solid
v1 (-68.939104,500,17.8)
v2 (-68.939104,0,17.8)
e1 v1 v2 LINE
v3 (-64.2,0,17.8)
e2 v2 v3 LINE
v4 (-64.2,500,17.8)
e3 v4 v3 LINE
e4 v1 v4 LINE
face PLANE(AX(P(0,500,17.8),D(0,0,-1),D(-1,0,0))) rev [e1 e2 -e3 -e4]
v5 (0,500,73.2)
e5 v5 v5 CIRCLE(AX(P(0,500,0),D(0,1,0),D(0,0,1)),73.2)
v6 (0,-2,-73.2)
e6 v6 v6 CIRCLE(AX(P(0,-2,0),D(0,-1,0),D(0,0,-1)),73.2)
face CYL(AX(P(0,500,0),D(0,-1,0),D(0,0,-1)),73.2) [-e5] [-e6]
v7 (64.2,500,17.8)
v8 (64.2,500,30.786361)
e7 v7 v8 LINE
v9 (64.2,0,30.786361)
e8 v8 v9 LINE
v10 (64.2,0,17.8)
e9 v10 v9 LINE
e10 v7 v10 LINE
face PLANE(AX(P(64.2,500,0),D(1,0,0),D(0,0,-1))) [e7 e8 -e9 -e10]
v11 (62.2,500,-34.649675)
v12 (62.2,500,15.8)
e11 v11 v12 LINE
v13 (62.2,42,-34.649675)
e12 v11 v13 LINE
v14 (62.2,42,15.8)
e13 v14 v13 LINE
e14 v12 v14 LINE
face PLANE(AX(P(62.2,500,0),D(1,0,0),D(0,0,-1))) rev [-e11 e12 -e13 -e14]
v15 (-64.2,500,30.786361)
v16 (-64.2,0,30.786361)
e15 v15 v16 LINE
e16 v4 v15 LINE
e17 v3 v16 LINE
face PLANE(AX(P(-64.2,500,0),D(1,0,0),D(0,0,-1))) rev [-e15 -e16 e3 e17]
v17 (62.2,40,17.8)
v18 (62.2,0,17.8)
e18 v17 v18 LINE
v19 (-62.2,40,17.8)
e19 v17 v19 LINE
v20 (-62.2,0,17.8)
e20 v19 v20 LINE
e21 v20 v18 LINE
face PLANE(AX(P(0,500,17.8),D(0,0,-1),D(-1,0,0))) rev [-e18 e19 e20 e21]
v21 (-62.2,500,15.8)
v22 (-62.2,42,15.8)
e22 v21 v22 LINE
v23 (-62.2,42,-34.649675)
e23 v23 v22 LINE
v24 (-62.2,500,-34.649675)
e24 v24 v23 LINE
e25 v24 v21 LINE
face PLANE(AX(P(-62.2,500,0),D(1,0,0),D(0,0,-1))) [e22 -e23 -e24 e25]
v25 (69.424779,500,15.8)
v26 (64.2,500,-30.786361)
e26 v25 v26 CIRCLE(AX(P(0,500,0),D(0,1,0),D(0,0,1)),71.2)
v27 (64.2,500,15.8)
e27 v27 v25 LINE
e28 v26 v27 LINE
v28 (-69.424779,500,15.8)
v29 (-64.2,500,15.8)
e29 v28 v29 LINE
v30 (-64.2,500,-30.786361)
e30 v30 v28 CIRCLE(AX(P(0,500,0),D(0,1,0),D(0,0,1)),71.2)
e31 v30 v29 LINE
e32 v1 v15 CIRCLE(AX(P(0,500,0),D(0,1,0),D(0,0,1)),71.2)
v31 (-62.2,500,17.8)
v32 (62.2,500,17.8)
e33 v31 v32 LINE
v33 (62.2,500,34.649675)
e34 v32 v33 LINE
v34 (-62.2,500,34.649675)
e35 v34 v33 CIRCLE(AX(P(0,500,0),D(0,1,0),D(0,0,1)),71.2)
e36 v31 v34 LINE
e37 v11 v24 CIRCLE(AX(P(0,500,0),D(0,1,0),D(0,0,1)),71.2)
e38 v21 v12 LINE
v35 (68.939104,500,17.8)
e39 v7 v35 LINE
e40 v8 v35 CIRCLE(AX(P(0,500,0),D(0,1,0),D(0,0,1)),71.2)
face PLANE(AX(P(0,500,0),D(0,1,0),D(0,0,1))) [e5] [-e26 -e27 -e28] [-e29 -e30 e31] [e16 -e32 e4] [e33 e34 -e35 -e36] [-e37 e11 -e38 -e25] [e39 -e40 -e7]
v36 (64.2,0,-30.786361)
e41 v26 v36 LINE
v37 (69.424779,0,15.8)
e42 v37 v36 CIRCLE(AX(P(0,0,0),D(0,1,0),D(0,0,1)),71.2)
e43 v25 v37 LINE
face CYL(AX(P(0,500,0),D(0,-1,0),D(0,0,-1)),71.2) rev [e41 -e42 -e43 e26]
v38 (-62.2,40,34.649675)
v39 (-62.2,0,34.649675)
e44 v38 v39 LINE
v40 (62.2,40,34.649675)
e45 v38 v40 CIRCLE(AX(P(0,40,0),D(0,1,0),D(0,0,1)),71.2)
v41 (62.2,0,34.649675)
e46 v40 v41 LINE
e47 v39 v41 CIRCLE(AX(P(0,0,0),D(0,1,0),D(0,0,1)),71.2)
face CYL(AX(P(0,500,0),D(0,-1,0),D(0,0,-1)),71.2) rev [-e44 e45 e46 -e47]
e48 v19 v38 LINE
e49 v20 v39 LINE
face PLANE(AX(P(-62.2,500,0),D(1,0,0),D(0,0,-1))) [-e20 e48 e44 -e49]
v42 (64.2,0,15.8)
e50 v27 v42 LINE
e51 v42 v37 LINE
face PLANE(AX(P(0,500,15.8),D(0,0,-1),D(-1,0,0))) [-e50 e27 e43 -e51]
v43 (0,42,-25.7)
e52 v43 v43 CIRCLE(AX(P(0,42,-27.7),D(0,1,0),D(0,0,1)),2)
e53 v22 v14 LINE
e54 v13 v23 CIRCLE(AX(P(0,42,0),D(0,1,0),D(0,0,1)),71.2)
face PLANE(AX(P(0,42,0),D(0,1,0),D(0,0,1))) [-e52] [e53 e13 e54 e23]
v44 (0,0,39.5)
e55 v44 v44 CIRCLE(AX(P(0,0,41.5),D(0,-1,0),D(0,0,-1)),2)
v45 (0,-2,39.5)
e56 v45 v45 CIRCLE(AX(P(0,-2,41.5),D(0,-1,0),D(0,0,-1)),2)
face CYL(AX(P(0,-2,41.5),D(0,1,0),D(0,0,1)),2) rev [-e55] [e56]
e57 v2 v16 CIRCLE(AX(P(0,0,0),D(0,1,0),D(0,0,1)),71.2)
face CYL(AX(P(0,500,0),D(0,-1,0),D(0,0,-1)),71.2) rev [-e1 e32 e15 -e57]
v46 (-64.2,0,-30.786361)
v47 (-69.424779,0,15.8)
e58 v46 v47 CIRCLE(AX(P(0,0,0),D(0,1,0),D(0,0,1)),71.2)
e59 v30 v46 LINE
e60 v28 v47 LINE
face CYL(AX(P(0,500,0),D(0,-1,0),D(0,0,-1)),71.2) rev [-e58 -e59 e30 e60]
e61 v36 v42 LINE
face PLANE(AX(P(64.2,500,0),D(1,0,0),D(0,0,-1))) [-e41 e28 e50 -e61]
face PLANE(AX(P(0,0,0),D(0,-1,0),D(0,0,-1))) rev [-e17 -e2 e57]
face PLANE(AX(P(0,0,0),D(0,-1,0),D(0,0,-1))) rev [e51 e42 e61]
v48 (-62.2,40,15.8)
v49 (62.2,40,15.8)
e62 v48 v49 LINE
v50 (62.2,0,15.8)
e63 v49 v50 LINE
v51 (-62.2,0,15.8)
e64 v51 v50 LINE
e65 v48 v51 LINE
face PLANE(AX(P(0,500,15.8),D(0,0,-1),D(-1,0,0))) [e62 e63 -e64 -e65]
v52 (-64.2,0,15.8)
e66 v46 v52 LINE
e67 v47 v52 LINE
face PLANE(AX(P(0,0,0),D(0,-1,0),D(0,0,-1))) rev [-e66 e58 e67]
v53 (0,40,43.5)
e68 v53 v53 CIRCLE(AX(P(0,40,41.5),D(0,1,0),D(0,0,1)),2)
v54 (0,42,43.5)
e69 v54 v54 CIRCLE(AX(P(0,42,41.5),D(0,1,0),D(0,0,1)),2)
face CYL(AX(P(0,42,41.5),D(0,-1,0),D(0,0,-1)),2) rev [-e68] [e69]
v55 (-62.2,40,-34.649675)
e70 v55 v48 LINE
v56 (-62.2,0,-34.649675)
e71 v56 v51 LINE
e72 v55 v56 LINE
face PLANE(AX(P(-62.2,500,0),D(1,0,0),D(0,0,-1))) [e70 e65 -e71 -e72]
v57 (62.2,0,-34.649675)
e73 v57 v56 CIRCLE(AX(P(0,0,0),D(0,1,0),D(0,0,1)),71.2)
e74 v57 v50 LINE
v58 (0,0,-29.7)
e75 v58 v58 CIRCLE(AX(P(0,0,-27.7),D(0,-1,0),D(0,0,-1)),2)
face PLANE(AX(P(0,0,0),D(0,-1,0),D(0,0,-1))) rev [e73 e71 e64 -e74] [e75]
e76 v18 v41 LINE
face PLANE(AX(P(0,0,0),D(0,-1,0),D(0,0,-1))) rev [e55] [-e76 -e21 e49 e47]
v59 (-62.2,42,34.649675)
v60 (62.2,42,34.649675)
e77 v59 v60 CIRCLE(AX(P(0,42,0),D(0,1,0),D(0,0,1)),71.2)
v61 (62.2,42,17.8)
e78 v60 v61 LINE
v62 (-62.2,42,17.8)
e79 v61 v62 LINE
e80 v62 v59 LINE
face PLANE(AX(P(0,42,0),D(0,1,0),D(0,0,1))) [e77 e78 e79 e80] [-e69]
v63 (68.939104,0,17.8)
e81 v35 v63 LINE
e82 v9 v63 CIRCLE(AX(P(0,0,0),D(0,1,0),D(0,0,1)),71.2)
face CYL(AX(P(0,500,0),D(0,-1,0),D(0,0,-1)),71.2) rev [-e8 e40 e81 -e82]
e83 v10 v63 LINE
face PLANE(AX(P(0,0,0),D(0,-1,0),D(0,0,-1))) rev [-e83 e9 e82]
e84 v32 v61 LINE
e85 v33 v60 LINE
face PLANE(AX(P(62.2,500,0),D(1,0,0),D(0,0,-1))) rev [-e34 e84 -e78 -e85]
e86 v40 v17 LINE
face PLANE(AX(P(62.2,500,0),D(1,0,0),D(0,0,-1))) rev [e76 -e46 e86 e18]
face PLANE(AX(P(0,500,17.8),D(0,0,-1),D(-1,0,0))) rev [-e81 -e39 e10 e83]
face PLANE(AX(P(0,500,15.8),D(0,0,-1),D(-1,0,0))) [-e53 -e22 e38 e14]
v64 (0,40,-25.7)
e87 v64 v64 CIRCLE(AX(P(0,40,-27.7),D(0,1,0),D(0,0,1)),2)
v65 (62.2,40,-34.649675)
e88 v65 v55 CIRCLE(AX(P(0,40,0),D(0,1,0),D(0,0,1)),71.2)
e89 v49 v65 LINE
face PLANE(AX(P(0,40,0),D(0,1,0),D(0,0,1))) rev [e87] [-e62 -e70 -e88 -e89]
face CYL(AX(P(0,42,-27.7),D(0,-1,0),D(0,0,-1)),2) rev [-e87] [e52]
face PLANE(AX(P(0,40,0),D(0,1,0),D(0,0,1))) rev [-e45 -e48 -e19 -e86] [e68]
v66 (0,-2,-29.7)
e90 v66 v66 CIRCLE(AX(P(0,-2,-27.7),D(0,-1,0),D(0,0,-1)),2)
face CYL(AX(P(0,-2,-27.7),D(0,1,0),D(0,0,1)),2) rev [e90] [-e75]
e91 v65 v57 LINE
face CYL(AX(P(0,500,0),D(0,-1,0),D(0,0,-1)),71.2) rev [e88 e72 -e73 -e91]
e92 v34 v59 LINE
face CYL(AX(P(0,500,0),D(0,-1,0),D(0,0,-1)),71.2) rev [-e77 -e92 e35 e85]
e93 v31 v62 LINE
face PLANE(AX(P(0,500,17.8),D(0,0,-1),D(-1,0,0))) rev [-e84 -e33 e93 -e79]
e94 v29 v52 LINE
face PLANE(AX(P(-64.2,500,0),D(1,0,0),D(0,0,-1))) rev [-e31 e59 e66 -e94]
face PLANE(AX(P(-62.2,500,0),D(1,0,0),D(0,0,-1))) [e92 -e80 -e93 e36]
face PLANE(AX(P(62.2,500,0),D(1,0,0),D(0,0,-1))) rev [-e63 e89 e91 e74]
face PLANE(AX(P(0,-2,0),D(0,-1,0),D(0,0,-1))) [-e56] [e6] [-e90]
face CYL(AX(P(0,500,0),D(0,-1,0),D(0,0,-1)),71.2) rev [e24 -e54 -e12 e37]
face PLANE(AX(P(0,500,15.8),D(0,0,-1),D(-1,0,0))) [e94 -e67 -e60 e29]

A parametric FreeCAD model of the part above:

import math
import FreeCAD as App
import Part
import Sketcher
from FreeCAD import Vector

doc = App.newDocument("Part")
body = doc.addObject("PartDesign::Body", "Body")

sketch1 = body.newObject("Sketcher::SketchObject", "Sketch")
sketch1.AttachmentSupport = (doc.getObject("XZ_Plane"), [""])
sketch1.MapMode = "FlatFace"
sketch1.addGeometry(Part.ArcOfCircle(Part.Circle(Vector(0, 0, 0), Vector(0, 0, 1), 73.2), math.radians(0), math.radians(148)), False)
sketch1.addGeometry(Part.ArcOfCircle(Part.Circle(Vector(0, 0, 0), Vector(0, 0, 1), 73.2), math.radians(151), math.radians(360)), False)
sketch1.addGeometry(Part.ArcOfCircle(Part.Circle(Vector(0, 0, 0), Vector(0, 0, 1), 73.2), math.radians(148.18), math.radians(151.29)), False)
sketch1.addGeometry(Part.LineSegment(Vector(-62.2, 34.6, 0), Vector(-62.2, 17.8, 0)), False)
sketch1.addGeometry(Part.LineSegment(Vector(-62.2, 17.8, 0), Vector(62.2, 17.8, 0)), False)
sketch1.addGeometry(Part.LineSegment(Vector(62.2, 17.8, 0), Vector(62.2, 34.6, 0)), False)
sketch1.addGeometry(Part.ArcOfCircle(Part.Circle(Vector(0, 0, 0), Vector(0, 0, 1), 71.2), math.radians(29), math.radians(151)), False)
sketch1.addGeometry(Part.LineSegment(Vector(-64.2, 17.8, 0), Vector(-64.2, 30.8, 0)), False)
sketch1.addGeometry(Part.ArcOfCircle(Part.Circle(Vector(0, 0, 0), Vector(0, 0, 1), 71.2), math.radians(154.38), math.radians(165.52)), False)
sketch1.addGeometry(Part.LineSegment(Vector(-68.9, 17.8, 0), Vector(-64.2, 17.8, 0)), False)
sketch1.addGeometry(Part.ArcOfCircle(Part.Circle(Vector(0, 0, 0), Vector(0, 0, 1), 71.2), math.radians(14.48), math.radians(25.62)), False)
sketch1.addGeometry(Part.LineSegment(Vector(64.2, 30.8, 0), Vector(64.2, 17.8, 0)), False)
sketch1.addGeometry(Part.LineSegment(Vector(64.2, 17.8, 0), Vector(68.9, 17.8, 0)), False)
sketch1.addGeometry(Part.LineSegment(Vector(-64.2, -30.8, 0), Vector(-64.2, 15.8, 0)), False)
sketch1.addGeometry(Part.LineSegment(Vector(-64.2, 15.8, 0), Vector(-69.4, 15.8, 0)), False)
sketch1.addGeometry(Part.ArcOfCircle(Part.Circle(Vector(0, 0, 0), Vector(0, 0, 1), 71.2), math.radians(167), math.radians(206)), False)
sketch1.addGeometry(Part.LineSegment(Vector(-62.2, 15.8, 0), Vector(-62.2, -34.6, 0)), False)
sketch1.addGeometry(Part.ArcOfCircle(Part.Circle(Vector(0, 0, 0), Vector(0, 0, 1), 71.2), math.radians(-151), math.radians(-29)), False)
sketch1.addGeometry(Part.LineSegment(Vector(62.2, -34.6, 0), Vector(62.2, 15.8, 0)), False)
sketch1.addGeometry(Part.LineSegment(Vector(62.2, 15.8, 0), Vector(-62.2, 15.8, 0)), False)
sketch1.addGeometry(Part.LineSegment(Vector(69.4, 15.8, 0), Vector(64.2, 15.8, 0)), False)
sketch1.addGeometry(Part.LineSegment(Vector(64.2, 15.8, 0), Vector(64.2, -30.8, 0)), False)
sketch1.addGeometry(Part.ArcOfCircle(Part.Circle(Vector(0, 0, 0), Vector(0, 0, 1), 71.2), math.radians(-26), math.radians(13)), False)
sketch1.addConstraint(Sketcher.Constraint("Tangent", 0, 1, 1, 2))
sketch1.addConstraint(Sketcher.Constraint("Tangent", 1, 1, 2, 2))
sketch1.addConstraint(Sketcher.Constraint("Coincident", 2, 1, 0, 2))
sketch1.addConstraint(Sketcher.Constraint("Coincident", 3, 2, 4, 1))
sketch1.addConstraint(Sketcher.Constraint("Coincident", 4, 2, 5, 1))
sketch1.addConstraint(Sketcher.Constraint("Coincident", 5, 2, 6, 1))
sketch1.addConstraint(Sketcher.Constraint("Coincident", 6, 2, 3, 1))
sketch1.addConstraint(Sketcher.Constraint("Coincident", 7, 2, 8, 1))
sketch1.addConstraint(Sketcher.Constraint("Coincident", 8, 2, 9, 1))
sketch1.addConstraint(Sketcher.Constraint("Coincident", 9, 2, 7, 1))
sketch1.addConstraint(Sketcher.Constraint("Coincident", 10, 2, 11, 1))
sketch1.addConstraint(Sketcher.Constraint("Coincident", 11, 2, 12, 1))
sketch1.addConstraint(Sketcher.Constraint("Coincident", 12, 2, 10, 1))
sketch1.addConstraint(Sketcher.Constraint("Coincident", 13, 2, 14, 1))
sketch1.addConstraint(Sketcher.Constraint("Coincident", 14, 2, 15, 1))
sketch1.addConstraint(Sketcher.Constraint("Coincident", 15, 2, 13, 1))
sketch1.addConstraint(Sketcher.Constraint("Coincident", 16, 2, 17, 1))
sketch1.addConstraint(Sketcher.Constraint("Coincident", 17, 2, 18, 1))
sketch1.addConstraint(Sketcher.Constraint("Coincident", 18, 2, 19, 1))
sketch1.addConstraint(Sketcher.Constraint("Coincident", 19, 2, 16, 1))
sketch1.addConstraint(Sketcher.Constraint("Coincident", 20, 2, 21, 1))
sketch1.addConstraint(Sketcher.Constraint("Coincident", 21, 2, 22, 1))
sketch1.addConstraint(Sketcher.Constraint("Coincident", 22, 2, 20, 1))
sketch1.addConstraint(Sketcher.Constraint("Vertical", 3))
sketch1.addConstraint(Sketcher.Constraint("Horizontal", 4))
sketch1.addConstraint(Sketcher.Constraint("Vertical", 5))
sketch1.addConstraint(Sketcher.Constraint("Vertical", 7))
sketch1.addConstraint(Sketcher.Constraint("Horizontal", 9))
sketch1.addConstraint(Sketcher.Constraint("Vertical", 11))
sketch1.addConstraint(Sketcher.Constraint("Horizontal", 12))
sketch1.addConstraint(Sketcher.Constraint("Vertical", 13))
sketch1.addConstraint(Sketcher.Constraint("Horizontal", 14))
sketch1.addConstraint(Sketcher.Constraint("Vertical", 16))
sketch1.addConstraint(Sketcher.Constraint("Vertical", 18))
sketch1.addConstraint(Sketcher.Constraint("Horizontal", 19))
sketch1.addConstraint(Sketcher.Constraint("Horizontal", 20))
sketch1.addConstraint(Sketcher.Constraint("Vertical", 21))
sketch1.addConstraint(Sketcher.Constraint("Coincident", 0, 3, -1, 1))
sketch1.addConstraint(Sketcher.Constraint("Coincident", 6, 3, -1, 1))
sketch1.addConstraint(Sketcher.Constraint("Coincident", 8, 3, -1, 1))
sketch1.addConstraint(Sketcher.Constraint("Coincident", 10, 3, -1, 1))
sketch1.addConstraint(Sketcher.Constraint("Coincident", 15, 3, -1, 1))
sketch1.addConstraint(Sketcher.Constraint("Coincident", 17, 3, -1, 1))
sketch1.addConstraint(Sketcher.Constraint("Coincident", 22, 3, -1, 1))
sketch1.addConstraint(Sketcher.Constraint("Equal", 1, 2))
sketch1.addConstraint(Sketcher.Constraint("Equal", 6, 8))
sketch1.addConstraint(Sketcher.Constraint("Equal", 8, 10))
sketch1.addConstraint(Sketcher.Constraint("Equal", 10, 15))
sketch1.addConstraint(Sketcher.Constraint("Equal", 15, 17))
sketch1.addConstraint(Sketcher.Constraint("Equal", 17, 22))
sketch1.addConstraint(Sketcher.Constraint("Symmetric", 9, 2, 11, 2, -2))
sketch1.addConstraint(Sketcher.Constraint("Symmetric", 13, 2, 20, 2, -2))
sketch1.addConstraint(Sketcher.Constraint("PointOnObject", 0, 1, -1))
sketch1.addConstraint(Sketcher.Constraint("Horizontal", 5, 2, 6, 2))
sketch1.addConstraint(Sketcher.Constraint("Horizontal", 4, 2, 8, 2))
sketch1.addConstraint(Sketcher.Constraint("Horizontal", 16, 2, 17, 2))
sketch1.addConstraint(Sketcher.Constraint("Horizontal", 14, 2, 18, 2))
sketch1.addConstraint(Sketcher.Constraint("Vertical", 2, 1, 3, 2))
sketch1.addConstraint(Sketcher.Constraint("Vertical", 1, 1, 7, 2))
sketch1.addConstraint(Sketcher.Constraint("Vertical", 9, 2, 13, 2))
sketch1.addConstraint(Sketcher.Constraint("Vertical", 6, 2, 16, 2))
sketch1.addConstraint(Sketcher.Constraint("Radius", 0, 73.2))
sketch1.addConstraint(Sketcher.Constraint("Radius", 6, 71.2))
sketch1.addConstraint(Sketcher.Constraint("DistanceX", 4, 1, 4, 2, 124.4))
sketch1.addConstraint(Sketcher.Constraint("DistanceX", 1, 1, 2, 1, 2.0))
sketch1.addConstraint(Sketcher.Constraint("DistanceY", 13, 2, 9, 2, 2.0))
sketch1.addConstraint(Sketcher.Constraint("DistanceY", -1, 1, 3, 2, 17.8))
pad1 = body.newObject("PartDesign::Pad", "Pad")
pad1.Profile = sketch1
pad1.Length = 500
pad1.Reversed = True

sketch2 = body.newObject("Sketcher::SketchObject", "Sketch001")
sketch2.AttachmentSupport = (doc.getObject("XZ_Plane"), [""])
sketch2.MapMode = "FlatFace"
sketch2.AttachmentOffset = App.Placement(Vector(0, 0, 2), App.Rotation())
sketch2.addGeometry(Part.Circle(Vector(0, 0, 0), Vector(0, 0, 1), 73.2), False)
sketch2.addGeometry(Part.Circle(Vector(0, 41.5, 0), Vector(0, 0, 1), 2), False)
sketch2.addGeometry(Part.Circle(Vector(0, -27.7, 0), Vector(0, 0, 1), 2), False)
sketch2.addConstraint(Sketcher.Constraint("Coincident", 0, 3, -1, 1))
sketch2.addConstraint(Sketcher.Constraint("Equal", 1, 2))
sketch2.addConstraint(Sketcher.Constraint("PointOnObject", 1, 3, -2))
sketch2.addConstraint(Sketcher.Constraint("PointOnObject", 2, 3, -2))
sketch2.addConstraint(Sketcher.Constraint("Diameter", 1, 4.0))
sketch2.addConstraint(Sketcher.Constraint("Diameter", 0, 146.4))
sketch2.addConstraint(Sketcher.Constraint("DistanceY", -1, 1, 1, 3, 41.5))
sketch2.addConstraint(Sketcher.Constraint("DistanceY", 2, 3, -1, 1, 27.7))
pad2 = body.newObject("PartDesign::Pad", "Pad001")
pad2.Profile = sketch2
pad2.Length = 2
pad2.Reversed = True

sketch3 = body.newObject("Sketcher::SketchObject", "Sketch002")
sketch3.AttachmentSupport = (doc.getObject("XZ_Plane"), [""])
sketch3.MapMode = "FlatFace"
sketch3.AttachmentOffset = App.Placement(Vector(0, 0, -40), App.Rotation())
sketch3.addGeometry(Part.LineSegment(Vector(-62.2, 17.8, 0), Vector(-62.2, 34.6, 0)), False)
sketch3.addGeometry(Part.ArcOfCircle(Part.Circle(Vector(0, 0, 0), Vector(0, 0, 1), 71.2), math.radians(29), math.radians(151)), False)
sketch3.addGeometry(Part.LineSegment(Vector(62.2, 34.6, 0), Vector(62.2, 17.8, 0)), False)
sketch3.addGeometry(Part.LineSegment(Vector(62.2, 17.8, 0), Vector(-62.2, 17.8, 0)), False)
sketch3.addGeometry(Part.Circle(Vector(0, 41.5, 0), Vector(0, 0, 1), 2), False)
sketch3.addGeometry(Part.LineSegment(Vector(62.2, 15.8, 0), Vector(62.2, -34.6, 0)), False)
sketch3.addGeometry(Part.ArcOfCircle(Part.Circle(Vector(0, 0, 0), Vector(0, 0, 1), 71.2), math.radians(-151), math.radians(-29)), False)
sketch3.addGeometry(Part.LineSegment(Vector(-62.2, -34.6, 0), Vector(-62.2, 15.8, 0)), False)
sketch3.addGeometry(Part.LineSegment(Vector(-62.2, 15.8, 0), Vector(62.2, 15.8, 0)), False)
sketch3.addGeometry(Part.Circle(Vector(0, -27.7, 0), Vector(0, 0, 1), 2), False)
sketch3.addConstraint(Sketcher.Constraint("Coincident", 0, 2, 1, 2))
sketch3.addConstraint(Sketcher.Constraint("Coincident", 1, 1, 2, 1))
sketch3.addConstraint(Sketcher.Constraint("Coincident", 2, 2, 3, 1))
sketch3.addConstraint(Sketcher.Constraint("Coincident", 3, 2, 0, 1))
sketch3.addConstraint(Sketcher.Constraint("Coincident", 5, 2, 6, 2))
sketch3.addConstraint(Sketcher.Constraint("Coincident", 6, 1, 7, 1))
sketch3.addConstraint(Sketcher.Constraint("Coincident", 7, 2, 8, 1))
sketch3.addConstraint(Sketcher.Constraint("Coincident", 8, 2, 5, 1))
sketch3.addConstraint(Sketcher.Constraint("Vertical", 0))
sketch3.addConstraint(Sketcher.Constraint("Vertical", 2))
sketch3.addConstraint(Sketcher.Constraint("Horizontal", 3))
sketch3.addConstraint(Sketcher.Constraint("Vertical", 5))
sketch3.addConstraint(Sketcher.Constraint("Vertical", 7))
sketch3.addConstraint(Sketcher.Constraint("Horizontal", 8))
sketch3.addConstraint(Sketcher.Constraint("Coincident", 1, 3, -1, 1))
sketch3.addConstraint(Sketcher.Constraint("Coincident", 6, 3, -1, 1))
sketch3.addConstraint(Sketcher.Constraint("Equal", 1, 6))
sketch3.addConstraint(Sketcher.Constraint("Equal", 4, 9))
sketch3.addConstraint(Sketcher.Constraint("PointOnObject", 4, 3, -2))
sketch3.addConstraint(Sketcher.Constraint("PointOnObject", 9, 3, -2))
sketch3.addConstraint(Sketcher.Constraint("Horizontal", 0, 2, 1, 1))
sketch3.addConstraint(Sketcher.Constraint("Horizontal", 5, 2, 6, 1))
sketch3.addConstraint(Sketcher.Constraint("Vertical", 2, 2, 5, 2))
sketch3.addConstraint(Sketcher.Constraint("Diameter", 4, 4.0))
sketch3.addConstraint(Sketcher.Constraint("Radius", 1, 71.2))
sketch3.addConstraint(Sketcher.Constraint("DistanceX", 3, 2, 3, 1, 124.4))
sketch3.addConstraint(Sketcher.Constraint("DistanceY", 7, 2, 3, 2, 2.0))
sketch3.addConstraint(Sketcher.Constraint("DistanceY", -1, 1, 4, 3, 41.5))
sketch3.addConstraint(Sketcher.Constraint("DistanceY", 9, 3, -1, 1, 27.7))
sketch3.addConstraint(Sketcher.Constraint("DistanceY", -1, 1, 2, 2, 17.8))
pad3 = body.newObject("PartDesign::Pad", "Pad002")
pad3.Profile = sketch3
pad3.Length = 2
pad3.Reversed = True

doc.recompute()
